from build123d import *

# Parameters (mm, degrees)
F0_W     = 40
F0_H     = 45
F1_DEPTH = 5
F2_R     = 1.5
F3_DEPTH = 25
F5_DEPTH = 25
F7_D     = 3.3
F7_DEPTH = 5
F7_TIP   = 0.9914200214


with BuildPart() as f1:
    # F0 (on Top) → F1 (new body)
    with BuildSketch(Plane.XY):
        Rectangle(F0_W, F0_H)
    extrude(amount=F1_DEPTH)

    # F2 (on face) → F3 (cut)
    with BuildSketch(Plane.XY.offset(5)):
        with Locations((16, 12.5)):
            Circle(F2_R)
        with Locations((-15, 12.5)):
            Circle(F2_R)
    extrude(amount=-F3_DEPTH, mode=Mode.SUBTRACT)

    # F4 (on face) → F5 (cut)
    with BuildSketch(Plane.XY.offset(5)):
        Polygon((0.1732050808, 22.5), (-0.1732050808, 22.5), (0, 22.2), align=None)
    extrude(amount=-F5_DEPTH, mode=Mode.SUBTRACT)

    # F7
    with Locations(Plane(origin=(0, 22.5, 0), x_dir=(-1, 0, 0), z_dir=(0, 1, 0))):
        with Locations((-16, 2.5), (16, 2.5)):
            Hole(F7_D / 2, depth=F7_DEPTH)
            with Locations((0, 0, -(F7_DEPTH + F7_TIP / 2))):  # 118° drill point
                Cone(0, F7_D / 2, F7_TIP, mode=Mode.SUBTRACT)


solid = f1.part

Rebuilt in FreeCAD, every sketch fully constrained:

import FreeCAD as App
import Part
import Sketcher
from FreeCAD import Vector
Q = App.Units.Quantity

doc = App.newDocument("Part")
body = doc.addObject("PartDesign::Body", "Body")

# Sketch on XY plane
sketch1 = body.newObject("Sketcher::SketchObject", "Sketch")
sketch1.AttachmentSupport = (doc.getObject("XY_Plane"), [""])
sketch1.MapMode = "FlatFace"
sketch1.addGeometry([
    Part.LineSegment(Vector(-20, 22, 0), Vector(-20, -22, 0)),
    Part.LineSegment(Vector(-20, -22, 0), Vector(20, -22, 0)),
    Part.LineSegment(Vector(20, -22, 0), Vector(20, 22, 0)),
    Part.LineSegment(Vector(20, 22, 0), Vector(-20, 22, 0)),
], False)
sketch1.addConstraint([
    Sketcher.Constraint("Coincident", 0, 2, 1, 1),
    Sketcher.Constraint("Coincident", 1, 2, 2, 1),
    Sketcher.Constraint("Coincident", 2, 2, 3, 1),
    Sketcher.Constraint("Coincident", 3, 2, 0, 1),
    Sketcher.Constraint("Vertical", 0),
    Sketcher.Constraint("Horizontal", 1),
    Sketcher.Constraint("Vertical", 2),
    Sketcher.Constraint("Horizontal", 3),
    Sketcher.Constraint("Symmetric", 0, 2, 2, 2, -1, 1),
    Sketcher.Constraint("DistanceX", 1, 1, 1, 2, 40.0),
    Sketcher.Constraint("DistanceY", 0, 2, 0, 1, 45.0),
])
pad1 = body.newObject("PartDesign::Pad", "Pad")
pad1.Profile = sketch1
pad1.Length = 5

# Sketch on XY plane
sketch2 = body.newObject("Sketcher::SketchObject", "Sketch001")
sketch2.AttachmentSupport = (doc.getObject("XY_Plane"), [""])
sketch2.MapMode = "FlatFace"
sketch2.AttachmentOffset = App.Placement(Vector(0, 0, 5), App.Rotation())
sketch2.addGeometry([
    Part.Circle(Vector(16, 12.5, 0), Vector(0, 0, 1), 1.5),
    Part.Circle(Vector(-15, 12.5, 0), Vector(0, 0, 1), 1.5),
], False)
sketch2.addConstraint([
    Sketcher.Constraint("Equal", 0, 1),
    Sketcher.Constraint("Horizontal", 0, 3, 1, 3),
    Sketcher.Constraint("Diameter", 0, 3.0),
    Sketcher.Constraint("DistanceX", -1, 1, 0, 3, 16.0),
    Sketcher.Constraint("DistanceX", 1, 3, -1, 1, 15.0),
    Sketcher.Constraint("DistanceY", -1, 1, 0, 3, 12.5),
])
pocket1 = body.newObject("PartDesign::Pocket", "Pocket")
pocket1.Profile = sketch2
pocket1.Length = 25

# Sketch on XY plane
sketch3 = body.newObject("Sketcher::SketchObject", "Sketch002")
sketch3.AttachmentSupport = (doc.getObject("XY_Plane"), [""])
sketch3.MapMode = "FlatFace"
sketch3.AttachmentOffset = App.Placement(Vector(0, 0, 5), App.Rotation())
sketch3.addGeometry([
    Part.LineSegment(Vector(0.17, 22.5, 0), Vector(-0.17, 22.5, 0)),
    Part.LineSegment(Vector(-0.17, 22.5, 0), Vector(0, 22.2, 0)),
    Part.LineSegment(Vector(0, 22.2, 0), Vector(0.17, 22.5, 0)),
], False)
sketch3.addConstraint([
    Sketcher.Constraint("Coincident", 0, 2, 1, 1),
    Sketcher.Constraint("Coincident", 1, 2, 2, 1),
    Sketcher.Constraint("Coincident", 2, 2, 0, 1),
    Sketcher.Constraint("Horizontal", 0),
    Sketcher.Constraint("PointOnObject", 1, 2, -2),
    Sketcher.Constraint("Equal", 1, 2),
    Sketcher.Constraint("Angle", 1, Q("-60 deg")),
    Sketcher.Constraint("DistanceY", -1, 1, 0, 2, 22.5),
    Sketcher.Constraint("DistanceY", -1, 1, 1, 2, 22.2),
])
pocket2 = body.newObject("PartDesign::Pocket", "Pocket001")
pocket2.Profile = sketch3
pocket2.Length = 25

# Sketch on XZ plane
sketch4 = body.newObject("Sketcher::SketchObject", "Sketch003")
sketch4.AttachmentSupport = (doc.getObject("XZ_Plane"), [""])
sketch4.MapMode = "FlatFace"
sketch4.AttachmentOffset = App.Placement(Vector(0, 0, -22.5), App.Rotation())
sketch4.addGeometry([
    Part.Circle(Vector(16, 2.5, 0), Vector(0, 0, 1), 1.6),
    Part.Circle(Vector(-16, 2.5, 0), Vector(0, 0, 1), 1.6),
], False)
sketch4.addConstraint([
    Sketcher.Constraint("Equal", 0, 1),
    Sketcher.Constraint("Symmetric", 0, 3, 1, 3, -2),
    Sketcher.Constraint("Diameter", 0, 3.3),
    Sketcher.Constraint("DistanceX", -1, 1, 0, 3, 16.0),
    Sketcher.Constraint("DistanceY", -1, 1, 0, 3, 2.5),
])
doc.recompute()
hole = body.newObject("PartDesign::Hole", "Hole")
hole.Profile = sketch4
hole.ThreadType = "None"
hole.Diameter = 3.3
hole.DepthType = "Dimension"
hole.Depth = 5
hole.DrillPoint = "Angled"
hole.DrillPointAngle = 118
hole.Reversed = True

doc.recompute()
